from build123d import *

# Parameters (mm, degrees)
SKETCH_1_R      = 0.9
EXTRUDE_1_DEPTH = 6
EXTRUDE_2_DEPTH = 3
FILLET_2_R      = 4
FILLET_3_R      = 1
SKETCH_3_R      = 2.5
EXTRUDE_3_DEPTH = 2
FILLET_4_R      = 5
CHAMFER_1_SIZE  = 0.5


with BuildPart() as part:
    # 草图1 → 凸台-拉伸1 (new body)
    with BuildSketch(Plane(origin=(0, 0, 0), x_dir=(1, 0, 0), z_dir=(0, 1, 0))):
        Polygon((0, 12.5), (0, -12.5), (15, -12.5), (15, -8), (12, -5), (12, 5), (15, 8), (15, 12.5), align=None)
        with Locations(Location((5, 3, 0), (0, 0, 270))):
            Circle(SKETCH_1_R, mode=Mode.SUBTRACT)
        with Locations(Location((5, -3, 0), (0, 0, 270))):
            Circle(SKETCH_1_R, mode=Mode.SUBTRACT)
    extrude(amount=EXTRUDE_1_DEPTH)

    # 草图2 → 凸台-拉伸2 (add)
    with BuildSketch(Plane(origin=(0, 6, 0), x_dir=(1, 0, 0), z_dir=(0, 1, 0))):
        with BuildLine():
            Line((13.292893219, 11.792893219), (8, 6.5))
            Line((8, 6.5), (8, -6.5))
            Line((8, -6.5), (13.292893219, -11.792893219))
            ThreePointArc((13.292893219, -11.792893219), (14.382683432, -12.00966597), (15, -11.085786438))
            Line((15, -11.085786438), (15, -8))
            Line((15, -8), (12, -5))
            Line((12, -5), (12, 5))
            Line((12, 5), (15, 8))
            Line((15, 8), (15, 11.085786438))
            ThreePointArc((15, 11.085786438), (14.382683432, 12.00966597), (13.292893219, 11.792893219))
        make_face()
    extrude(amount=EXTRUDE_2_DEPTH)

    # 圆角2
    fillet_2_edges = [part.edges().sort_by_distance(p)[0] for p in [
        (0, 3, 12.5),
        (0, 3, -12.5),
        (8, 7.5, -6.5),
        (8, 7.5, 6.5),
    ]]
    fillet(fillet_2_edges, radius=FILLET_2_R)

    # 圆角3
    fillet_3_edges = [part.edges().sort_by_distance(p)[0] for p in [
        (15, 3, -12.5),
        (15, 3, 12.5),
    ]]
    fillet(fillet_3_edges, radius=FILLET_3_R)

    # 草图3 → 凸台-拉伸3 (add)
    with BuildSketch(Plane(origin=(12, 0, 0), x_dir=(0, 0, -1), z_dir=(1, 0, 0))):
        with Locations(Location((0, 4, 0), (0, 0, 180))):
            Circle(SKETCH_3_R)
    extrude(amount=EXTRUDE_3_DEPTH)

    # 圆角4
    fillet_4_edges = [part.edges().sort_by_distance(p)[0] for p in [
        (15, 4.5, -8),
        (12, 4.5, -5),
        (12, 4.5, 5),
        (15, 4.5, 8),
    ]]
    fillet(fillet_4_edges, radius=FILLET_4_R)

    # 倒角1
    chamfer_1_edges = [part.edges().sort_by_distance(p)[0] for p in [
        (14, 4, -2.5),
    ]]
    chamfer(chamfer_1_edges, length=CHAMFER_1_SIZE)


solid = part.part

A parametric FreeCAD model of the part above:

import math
import FreeCAD as App
import Part
import Sketcher


def edges_at(feature, points):
    """Names of the edges that pass closest to the given points."""
    edges = feature.Shape.Edges
    near = lambda p: min(range(len(edges)), key=lambda i: edges[i].distToShape(Part.Vertex(*p))[0])
    return sorted({f"Edge{near(p) + 1}" for p in points})

doc = App.newDocument("Part")
body = doc.addObject("PartDesign::Body", "Body")

sketch1 = body.newObject("Sketcher::SketchObject", "Sketch")
sketch1.AttachmentSupport = (doc.getObject("XZ_Plane"), [""])
sketch1.MapMode = "FlatFace"
sketch1.addGeometry([
    Part.LineSegment(App.Vector(0, -12.5, 0), App.Vector(0, 12.5, 0)),
    Part.LineSegment(App.Vector(0, 12.5, 0), App.Vector(15, 12.5, 0)),
    Part.LineSegment(App.Vector(15, 12.5, 0), App.Vector(15, 8, 0)),
    Part.LineSegment(App.Vector(15, 8, 0), App.Vector(12, 5, 0)),
    Part.LineSegment(App.Vector(12, 5, 0), App.Vector(12, -5, 0)),
    Part.LineSegment(App.Vector(12, -5, 0), App.Vector(15, -8, 0)),
    Part.LineSegment(App.Vector(15, -8, 0), App.Vector(15, -12.5, 0)),
    Part.LineSegment(App.Vector(15, -12.5, 0), App.Vector(0, -12.5, 0)),
    Part.Circle(App.Vector(5, 3, 0), App.Vector(0, 0, 1), 0.9),
    Part.Circle(App.Vector(5, -3, 0), App.Vector(0, 0, 1), 0.9),
], False)
sketch1.addConstraint([
    Sketcher.Constraint("Coincident", 0, 2, 1, 1),
    Sketcher.Constraint("Coincident", 1, 2, 2, 1),
    Sketcher.Constraint("Coincident", 2, 2, 3, 1),
    Sketcher.Constraint("Coincident", 3, 2, 4, 1),
    Sketcher.Constraint("Coincident", 4, 2, 5, 1),
    Sketcher.Constraint("Coincident", 5, 2, 6, 1),
    Sketcher.Constraint("Coincident", 6, 2, 7, 1),
    Sketcher.Constraint("Coincident", 7, 2, 0, 1),
    Sketcher.Constraint("Vertical", 0),
    Sketcher.Constraint("Horizontal", 1),
    Sketcher.Constraint("Vertical", 2),
    Sketcher.Constraint("Vertical", 4),
    Sketcher.Constraint("Vertical", 6),
    Sketcher.Constraint("Horizontal", 7),
    Sketcher.Constraint("Equal", 8, 9),
    Sketcher.Constraint("Symmetric", 0, 2, 7, 2, -1, 1),
    Sketcher.Constraint("Symmetric", 8, 3, 9, 3, -1),
    Sketcher.Constraint("Symmetric", 2, 2, 5, 2, -1),
    Sketcher.Constraint("Perpendicular", 3, 5),
    Sketcher.Constraint("Equal", 3, 5),
    Sketcher.Constraint("Diameter", 8, 1.8),
    Sketcher.Constraint("DistanceX", 1, 1, 1, 2, 15.0),
    Sketcher.Constraint("DistanceY", 0, 1, 0, 2, 25.0),
    Sketcher.Constraint("DistanceY", 4, 2, 4, 1, 10.0),
    Sketcher.Constraint("DistanceY", 2, 2, 2, 1, 4.5),
    Sketcher.Constraint("DistanceX", -1, 1, 8, 3, 5.0),
    Sketcher.Constraint("DistanceY", -1, 1, 8, 3, 3.0),
])
pad1 = body.newObject("PartDesign::Pad", "Pad")
pad1.Profile = sketch1
pad1.Length = 6
pad1.Reversed = True

sketch2 = body.newObject("Sketcher::SketchObject", "Sketch001")
sketch2.AttachmentSupport = (doc.getObject("XZ_Plane"), [""])
sketch2.MapMode = "FlatFace"
sketch2.AttachmentOffset = App.Placement(App.Vector(0, 0, -6), App.Rotation())
sketch2.addGeometry([
    Part.LineSegment(App.Vector(13.3, -11.8, 0), App.Vector(8, -6.5, 0)),
    Part.LineSegment(App.Vector(8, -6.5, 0), App.Vector(8, 6.5, 0)),
    Part.LineSegment(App.Vector(8, 6.5, 0), App.Vector(13.3, 11.8, 0)),
    Part.ArcOfCircle(Part.Circle(App.Vector(14, 11.1, 0), App.Vector(0, 0, 1), 1), math.radians(0), math.radians(135)),
    Part.LineSegment(App.Vector(15, 11.1, 0), App.Vector(15, 8, 0)),
    Part.LineSegment(App.Vector(15, 8, 0), App.Vector(12, 5, 0)),
    Part.LineSegment(App.Vector(12, 5, 0), App.Vector(12, -5, 0)),
    Part.LineSegment(App.Vector(12, -5, 0), App.Vector(15, -8, 0)),
    Part.LineSegment(App.Vector(15, -8, 0), App.Vector(15, -11.1, 0)),
    Part.ArcOfCircle(Part.Circle(App.Vector(14, -11.1, 0), App.Vector(0, 0, 1), 1), math.radians(-135), math.radians(0)),
], False)
sketch2.addConstraint([
    Sketcher.Constraint("Coincident", 0, 2, 1, 1),
    Sketcher.Constraint("Coincident", 1, 2, 2, 1),
    Sketcher.Constraint("Tangent", 2, 2, 3, 2),
    Sketcher.Constraint("Tangent", 3, 1, 4, 1),
    Sketcher.Constraint("Coincident", 4, 2, 5, 1),
    Sketcher.Constraint("Coincident", 5, 2, 6, 1),
    Sketcher.Constraint("Coincident", 6, 2, 7, 1),
    Sketcher.Constraint("Coincident", 7, 2, 8, 1),
    Sketcher.Constraint("Tangent", 8, 2, 9, 2),
    Sketcher.Constraint("Tangent", 9, 1, 0, 1),
    Sketcher.Constraint("Vertical", 1),
    Sketcher.Constraint("Vertical", 4),
    Sketcher.Constraint("Vertical", 6),
    Sketcher.Constraint("Vertical", 8),
    Sketcher.Constraint("Equal", 3, 9),
    Sketcher.Constraint("Symmetric", 3, 3, 9, 3, -1),
    Sketcher.Constraint("Perpendicular", 0, 2),
    Sketcher.Constraint("Parallel", 2, 5),
    Sketcher.Constraint("Perpendicular", 5, 7),
    Sketcher.Constraint("Vertical", 2, 2, 9, 1),
    Sketcher.Constraint("Equal", 4, 8),
    Sketcher.Constraint("Radius", 3, 1.0),
    Sketcher.Constraint("DistanceY", 1, 1, 1, 2, 13.0),
    Sketcher.Constraint("DistanceY", 6, 2, 6, 1, 10.0),
    Sketcher.Constraint("DistanceX", -1, 1, 3, 3, 14.0),
    Sketcher.Constraint("DistanceX", -1, 1, 0, 2, 8.0),
    Sketcher.Constraint("DistanceY", -1, 1, 4, 2, 8.0),
])
pad2 = body.newObject("PartDesign::Pad", "Pad001")
pad2.Profile = sketch2
pad2.Length = 3
pad2.Reversed = True
doc.recompute()

fillet = body.newObject("PartDesign::Fillet", "Fillet")
fillet.Base = (pad2, edges_at(pad2, [
    (0, 3, 12.5),
    (0, 3, -12.5),
    (8, 7.5, -6.5),
    (8, 7.5, 6.5),
]))
fillet.Radius = 4
doc.recompute()

fillet2 = body.newObject("PartDesign::Fillet", "Fillet001")
fillet2.Base = (fillet, edges_at(fillet, [(15, 3, -12.5), (15, 3, 12.5)]))
fillet2.Radius = 1

sketch3 = body.newObject("Sketcher::SketchObject", "Sketch002")
sketch3.AttachmentSupport = (doc.getObject("YZ_Plane"), [""])
sketch3.MapMode = "FlatFace"
sketch3.AttachmentOffset = App.Placement(App.Vector(0, 0, 12), App.Rotation())
sketch3.addGeometry(Part.Circle(App.Vector(4, 0, 0), App.Vector(0, 0, 1), 2.5), False)
sketch3.addConstraint([
    Sketcher.Constraint("PointOnObject", 0, 3, -1),
    Sketcher.Constraint("Diameter", 0, 5.0),
    Sketcher.Constraint("DistanceX", -1, 1, 0, 3, 4.0),
])
pad3 = body.newObject("PartDesign::Pad", "Pad002")
pad3.Profile = sketch3
pad3.Length = 2
doc.recompute()

fillet3 = body.newObject("PartDesign::Fillet", "Fillet002")
fillet3.Base = (pad3, edges_at(pad3, [
    (15, 4.5, -8),
    (12, 4.5, -5),
    (12, 4.5, 5),
    (15, 4.5, 8),
]))
fillet3.Radius = 5
doc.recompute()

chamfer = body.newObject("PartDesign::Chamfer", "Chamfer")
chamfer.Base = (fillet3, edges_at(fillet3, [(14, 4, -2.5)]))
chamfer.Size = 0.5

doc.recompute()
